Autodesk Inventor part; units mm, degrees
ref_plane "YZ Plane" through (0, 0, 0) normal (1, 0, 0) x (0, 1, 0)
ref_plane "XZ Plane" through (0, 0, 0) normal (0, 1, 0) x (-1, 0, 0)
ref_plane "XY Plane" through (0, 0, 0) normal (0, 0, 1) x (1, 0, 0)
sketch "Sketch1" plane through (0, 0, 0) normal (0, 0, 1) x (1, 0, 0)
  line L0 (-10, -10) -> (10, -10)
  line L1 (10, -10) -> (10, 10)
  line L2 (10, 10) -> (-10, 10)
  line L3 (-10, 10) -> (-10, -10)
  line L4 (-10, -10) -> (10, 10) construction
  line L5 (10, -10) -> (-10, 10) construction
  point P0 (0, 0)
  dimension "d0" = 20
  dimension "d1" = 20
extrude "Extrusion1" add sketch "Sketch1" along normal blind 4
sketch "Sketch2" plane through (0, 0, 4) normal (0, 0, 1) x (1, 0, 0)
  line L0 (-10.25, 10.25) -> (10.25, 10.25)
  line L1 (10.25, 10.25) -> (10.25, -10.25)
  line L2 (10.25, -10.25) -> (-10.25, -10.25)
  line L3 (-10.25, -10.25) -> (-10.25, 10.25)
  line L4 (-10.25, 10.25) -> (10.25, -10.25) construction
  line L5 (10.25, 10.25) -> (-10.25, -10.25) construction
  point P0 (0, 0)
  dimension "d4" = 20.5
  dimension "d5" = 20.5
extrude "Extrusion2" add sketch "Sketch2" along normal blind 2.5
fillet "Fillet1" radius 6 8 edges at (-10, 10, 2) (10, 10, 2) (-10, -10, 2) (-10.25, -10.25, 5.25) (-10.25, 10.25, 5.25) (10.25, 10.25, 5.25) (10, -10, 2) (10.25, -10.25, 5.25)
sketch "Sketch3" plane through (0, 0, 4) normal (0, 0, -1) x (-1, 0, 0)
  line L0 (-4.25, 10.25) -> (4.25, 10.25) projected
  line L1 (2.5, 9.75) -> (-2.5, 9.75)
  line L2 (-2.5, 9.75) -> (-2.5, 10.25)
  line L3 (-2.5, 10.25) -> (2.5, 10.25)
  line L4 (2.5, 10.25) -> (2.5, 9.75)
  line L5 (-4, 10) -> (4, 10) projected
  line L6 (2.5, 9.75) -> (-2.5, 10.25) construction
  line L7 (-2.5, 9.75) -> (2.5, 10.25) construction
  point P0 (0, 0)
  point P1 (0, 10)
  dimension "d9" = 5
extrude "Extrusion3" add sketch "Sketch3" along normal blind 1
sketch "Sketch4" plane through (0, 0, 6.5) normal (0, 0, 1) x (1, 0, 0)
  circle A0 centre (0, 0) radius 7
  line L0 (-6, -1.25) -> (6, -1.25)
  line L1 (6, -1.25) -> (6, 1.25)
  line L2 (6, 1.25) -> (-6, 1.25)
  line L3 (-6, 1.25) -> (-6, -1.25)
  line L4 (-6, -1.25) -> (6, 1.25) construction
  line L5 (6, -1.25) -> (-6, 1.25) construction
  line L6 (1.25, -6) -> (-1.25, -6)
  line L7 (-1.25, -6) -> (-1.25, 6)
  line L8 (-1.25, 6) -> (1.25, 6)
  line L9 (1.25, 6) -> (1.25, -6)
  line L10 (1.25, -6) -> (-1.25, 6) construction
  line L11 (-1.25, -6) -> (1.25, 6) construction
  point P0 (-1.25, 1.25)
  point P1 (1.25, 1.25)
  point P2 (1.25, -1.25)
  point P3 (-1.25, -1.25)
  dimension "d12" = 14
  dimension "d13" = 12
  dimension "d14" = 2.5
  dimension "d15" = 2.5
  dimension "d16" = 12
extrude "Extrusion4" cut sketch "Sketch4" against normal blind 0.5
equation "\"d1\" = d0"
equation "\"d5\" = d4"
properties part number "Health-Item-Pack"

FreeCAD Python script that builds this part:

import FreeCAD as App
import Part
import Sketcher
Q = App.Units.Quantity


def edges_at(feature, points):
    """Names of the edges that pass closest to the given points."""
    edges = feature.Shape.Edges
    near = lambda p: min(range(len(edges)), key=lambda i: edges[i].distToShape(Part.Vertex(*p))[0])
    return sorted({f"Edge{near(p) + 1}" for p in points})


def add_polygon(sketch, points):
    """Adds a closed chain of lines whose ends are joined by coincident constraints."""
    first, n = sketch.GeometryCount, len(points)
    for a, b in zip(points, points[1:] + points[:1]):
        sketch.addGeometry(Part.LineSegment(App.Vector(*a, 0), App.Vector(*b, 0)), False)
    for i in range(n):
        sketch.addConstraint(Sketcher.Constraint("Coincident", first + i, 2, first + (i + 1) % n, 1))

doc = App.newDocument("Part")
body = doc.addObject("PartDesign::Body", "Body")

sketch1 = doc.addObject("Sketcher::SketchObject", "Sketch")
body.addObject(sketch1)
sketch1.AttachmentSupport = (doc.XY_Plane, [""])
sketch1.MapMode = "FlatFace"
add_polygon(sketch1, [(-10, 10), (-10, -10), (10, -10), (10, 10)])
sketch1.addConstraint([
    Sketcher.Constraint("Vertical", 0),
    Sketcher.Constraint("Horizontal", 1),
    Sketcher.Constraint("Vertical", 2),
    Sketcher.Constraint("Horizontal", 3),
    Sketcher.Constraint("Symmetric", 0, 2, 2, 2, -1, 1),
    Sketcher.Constraint("Equal", 3, 0),
    Sketcher.Constraint("DistanceX", 1, 1, 1, 2, Q("20 mm")),
])
pad1 = doc.addObject("PartDesign::Pad", "Pad")
body.addObject(pad1)
pad1.Profile = sketch1
pad1.Length = 4

sketch2 = doc.addObject("Sketcher::SketchObject", "Sketch001")
body.addObject(sketch2)
sketch2.AttachmentSupport = (doc.XY_Plane, [""])
sketch2.MapMode = "FlatFace"
sketch2.AttachmentOffset = App.Placement(App.Vector(0, 0, 4), App.Rotation())
add_polygon(sketch2, [(10, 10), (-10, 10), (-10, -10), (10, -10)])
sketch2.addConstraint([
    Sketcher.Constraint("Horizontal", 0),
    Sketcher.Constraint("Vertical", 1),
    Sketcher.Constraint("Horizontal", 2),
    Sketcher.Constraint("Vertical", 3),
    Sketcher.Constraint("Symmetric", 0, 2, 2, 2, -1, 1),
    Sketcher.Constraint("Equal", 2, 1),
    Sketcher.Constraint("DistanceX", 0, 2, 0, 1, Q("20.5 mm")),
])
pad2 = doc.addObject("PartDesign::Pad", "Pad001")
body.addObject(pad2)
pad2.Profile = sketch2
pad2.Length = 2.5
doc.recompute()

fillet = doc.addObject("PartDesign::Fillet", "Fillet")
body.addObject(fillet)
fillet.Base = (pad2, edges_at(pad2, [
    (-10, 10, 2),
    (10, 10, 2),
    (-10, -10, 2),
    (-10.25, -10.25, 5.25),
    (-10.25, 10.25, 5.25),
    (10.25, 10.25, 5.25),
    (10, -10, 2),
    (10.25, -10.25, 5.25),
]))
fillet.Radius = 6

sketch3 = doc.addObject("Sketcher::SketchObject", "Sketch002")
body.addObject(sketch3)
sketch3.AttachmentSupport = (doc.XY_Plane, [""])
sketch3.MapMode = "FlatFace"
sketch3.AttachmentOffset = App.Placement(App.Vector(0, 0, 4), App.Rotation())
add_polygon(sketch3, [(-2.5, 10.2), (2.5, 10.2), (2.5, 9.8), (-2.5, 9.8)])
sketch3.addConstraint([
    Sketcher.Constraint("Horizontal", 0),
    Sketcher.Constraint("Vertical", 1),
    Sketcher.Constraint("Horizontal", 2),
    Sketcher.Constraint("Vertical", 3),
    Sketcher.Constraint("DistanceX", 0, 1, 0, 2, Q("5 mm")),
    Sketcher.Constraint("DistanceY", 1, 2, 1, 1, Q("0.5 mm")),
    Sketcher.Constraint("DistanceX", -1, 1, 0, 2, Q("2.5 mm")),
    Sketcher.Constraint("DistanceY", -1, 1, 0, 2, Q("10.25 mm")),
])
pad3 = doc.addObject("PartDesign::Pad", "Pad002")
body.addObject(pad3)
pad3.Profile = sketch3
pad3.Length = 1
pad3.Reversed = True

sketch4 = doc.addObject("Sketcher::SketchObject", "Sketch003")
body.addObject(sketch4)
sketch4.AttachmentSupport = (doc.XY_Plane, [""])
sketch4.MapMode = "FlatFace"
sketch4.AttachmentOffset = App.Placement(App.Vector(0, 0, 6.5), App.Rotation())
sketch4.addGeometry(Part.Circle(App.Vector(0, 0, 0), App.Vector(0, 0, 1), 7), False)
add_polygon(sketch4, [(-1.2, -1.2), (-6, -1.2), (-6, 1.2), (-1.2, 1.2), (-1.2, 6), (1.2, 6), (1.2, 1.2), (6, 1.2), (6, -1.2), (1.2, -1.2), (1.2, -6), (-1.2, -6)])
sketch4.addConstraint([
    Sketcher.Constraint("Horizontal", 1),
    Sketcher.Constraint("Vertical", 2),
    Sketcher.Constraint("Horizontal", 3),
    Sketcher.Constraint("Vertical", 4),
    Sketcher.Constraint("Horizontal", 5),
    Sketcher.Constraint("Vertical", 6),
    Sketcher.Constraint("Horizontal", 7),
    Sketcher.Constraint("Vertical", 8),
    Sketcher.Constraint("Horizontal", 9),
    Sketcher.Constraint("Vertical", 10),
    Sketcher.Constraint("Horizontal", 11),
    Sketcher.Constraint("Vertical", 12),
    Sketcher.Constraint("Coincident", 0, 3, -1, 1),
    Sketcher.Constraint("Symmetric", 1, 2, 7, 2, -1, 1),
    Sketcher.Constraint("Symmetric", 3, 2, 9, 2, -1, 1),
    Sketcher.Constraint("Symmetric", 5, 2, 11, 2, -1, 1),
    Sketcher.Constraint("Symmetric", 3, 2, 6, 2, -2),
    Sketcher.Constraint("Equal", 11, 2),
    Sketcher.Constraint("Equal", 9, 4),
    Sketcher.Constraint("Diameter", 0, Q("14 mm")),
    Sketcher.Constraint("DistanceX", 5, 1, 5, 2, Q("2.5 mm")),
    Sketcher.Constraint("DistanceX", 1, 2, -1, 1, Q("6 mm")),
])
pocket1 = doc.addObject("PartDesign::Pocket", "Pocket")
body.addObject(pocket1)
pocket1.Profile = sketch4
pocket1.Length = 0.5

doc.recompute()
